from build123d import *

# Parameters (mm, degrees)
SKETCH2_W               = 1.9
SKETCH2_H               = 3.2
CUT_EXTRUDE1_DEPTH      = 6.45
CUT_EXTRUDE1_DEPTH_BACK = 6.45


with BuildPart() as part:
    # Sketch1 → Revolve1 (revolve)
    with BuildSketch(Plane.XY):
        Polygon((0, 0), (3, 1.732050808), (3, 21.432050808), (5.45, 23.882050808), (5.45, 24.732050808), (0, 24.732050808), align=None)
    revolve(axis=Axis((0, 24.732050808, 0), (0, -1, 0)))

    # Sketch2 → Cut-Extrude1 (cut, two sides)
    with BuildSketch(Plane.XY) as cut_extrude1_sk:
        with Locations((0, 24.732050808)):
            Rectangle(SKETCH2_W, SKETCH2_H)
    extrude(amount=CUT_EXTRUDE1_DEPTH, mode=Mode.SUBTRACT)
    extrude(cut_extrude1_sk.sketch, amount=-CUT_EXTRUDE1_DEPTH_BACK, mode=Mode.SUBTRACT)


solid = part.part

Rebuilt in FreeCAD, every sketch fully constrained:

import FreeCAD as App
import Part
import Sketcher

V = App.Vector
Q = App.Units.Quantity


def add_polygon(sketch, points):
    """Adds a closed chain of lines whose ends are joined by coincident constraints."""
    first, n = sketch.GeometryCount, len(points)
    for a, b in zip(points, points[1:] + points[:1]):
        sketch.addGeometry(Part.LineSegment(App.Vector(*a, 0), App.Vector(*b, 0)), False)
    for i in range(n):
        sketch.addConstraint(Sketcher.Constraint("Coincident", first + i, 2, first + (i + 1) % n, 1))

doc = App.newDocument("Part")
params = doc.addObject("Spreadsheet::Sheet", "Params")
for row, (alias, value) in enumerate([
    ("sketch1_height", "19.7 mm"),
    ("sketch1_width", "5.45 mm"),
    ("revolution_angle", "360 deg"),
    ("sketch2_width", "1.9 mm"),
    ("sketch2_height", "3.2 mm"),
], start=1):
    params.set(f"A{row}", alias)
    params.set(f"B{row}", "=" + value)
    params.setAlias(f"B{row}", alias)

body = doc.addObject("PartDesign::Body", "Body")

sketch1 = body.newObject("Sketcher::SketchObject", "Sketch")
sketch1.AttachmentSupport = (doc.getObject("XY_Plane"), [""])
sketch1.MapMode = "FlatFace"
add_polygon(sketch1, [(0, 0), (3, 1.7), (3, 21.4), (5.5, 23.9), (5.5, 24.7), (0, 24.7)])
sketch1.addConstraint([
    Sketcher.Constraint("Vertical", 1),
    Sketcher.Constraint("Vertical", 3),
    Sketcher.Constraint("Horizontal", 4),
    Sketcher.Constraint("Vertical", 5),
    Sketcher.Constraint("Coincident", 5, 2, -1, 1),
    Sketcher.Constraint("Angle", 0, Q("30 deg")),
    Sketcher.Constraint("Angle", 2, Q("45 deg")),
    Sketcher.Constraint("DistanceY", 1, 1, 1, 2, Q("19.7 mm")),
    Sketcher.Constraint("DistanceX", -1, 1, 0, 2, Q("3 mm")),
    Sketcher.Constraint("DistanceY", 0, 2, 3, 2, Q("23 mm")),
    Sketcher.Constraint("DistanceX", 4, 2, 4, 1, Q("5.45 mm")),
])
sketch1.setExpression("Constraints[13]", "Params.sketch1_height")
sketch1.setExpression("Constraints[16]", "Params.sketch1_width")
revolution = body.newObject("PartDesign::Revolution", "Revolution")
revolution.Profile = sketch1
revolution.ReferenceAxis = (sketch1, ["V_Axis"])
revolution.setExpression("Angle", "Params.revolution_angle")

sketch2 = body.newObject("Sketcher::SketchObject", "Sketch001")
sketch2.AttachmentSupport = (doc.getObject("XY_Plane"), [""])
sketch2.MapMode = "FlatFace"
add_polygon(sketch2, [(-0.9, 26.3), (-0.9, 23.1), (0.9, 23.1), (0.9, 26.3)])
sketch2.addConstraint([
    Sketcher.Constraint("Vertical", 0),
    Sketcher.Constraint("Horizontal", 1),
    Sketcher.Constraint("Vertical", 2),
    Sketcher.Constraint("Horizontal", 3),
    Sketcher.Constraint("DistanceX", 1, 1, 1, 2, Q("1.9 mm")),
    Sketcher.Constraint("DistanceY", 0, 2, 0, 1, Q("3.2 mm")),
    Sketcher.Constraint("DistanceX", 0, 2, -1, 1, Q("0.95 mm")),
    Sketcher.Constraint("DistanceY", -1, 1, 0, 2, Q("23.132051 mm")),
])
sketch2.setExpression("Constraints[8]", "Params.sketch2_width")
sketch2.setExpression("Constraints[9]", "Params.sketch2_height")
pocket1 = body.newObject("PartDesign::Pocket", "Pocket")
pocket1.Profile = sketch2
pocket1.Type = "ThroughAll"
pocket1.Midplane = True

doc.recompute()
